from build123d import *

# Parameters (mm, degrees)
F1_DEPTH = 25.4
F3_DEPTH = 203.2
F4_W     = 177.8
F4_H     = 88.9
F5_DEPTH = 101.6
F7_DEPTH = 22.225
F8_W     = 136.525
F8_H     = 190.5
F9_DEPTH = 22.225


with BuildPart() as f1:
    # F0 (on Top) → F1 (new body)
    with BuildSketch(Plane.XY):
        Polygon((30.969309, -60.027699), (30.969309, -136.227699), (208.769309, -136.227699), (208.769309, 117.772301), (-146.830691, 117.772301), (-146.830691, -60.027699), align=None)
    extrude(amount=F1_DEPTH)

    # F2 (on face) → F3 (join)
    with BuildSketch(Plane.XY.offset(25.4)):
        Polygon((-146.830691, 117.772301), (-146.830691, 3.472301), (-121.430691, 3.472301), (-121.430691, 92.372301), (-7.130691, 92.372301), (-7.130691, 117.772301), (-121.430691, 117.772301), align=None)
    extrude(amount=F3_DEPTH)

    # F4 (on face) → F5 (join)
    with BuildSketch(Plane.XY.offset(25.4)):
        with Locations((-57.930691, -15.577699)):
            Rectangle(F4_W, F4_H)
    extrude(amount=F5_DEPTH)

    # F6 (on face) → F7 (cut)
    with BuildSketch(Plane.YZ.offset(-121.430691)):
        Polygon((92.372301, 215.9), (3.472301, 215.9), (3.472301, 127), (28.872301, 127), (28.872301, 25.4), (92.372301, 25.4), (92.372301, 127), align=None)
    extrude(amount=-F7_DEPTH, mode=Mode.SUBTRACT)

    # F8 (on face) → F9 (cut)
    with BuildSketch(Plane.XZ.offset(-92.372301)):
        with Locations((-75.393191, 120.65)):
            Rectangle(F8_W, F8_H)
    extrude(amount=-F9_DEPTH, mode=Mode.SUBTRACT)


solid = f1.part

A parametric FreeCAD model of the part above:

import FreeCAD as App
import Part
import Sketcher

V = App.Vector
Q = App.Units.Quantity


def add_polygon(sketch, points):
    """Adds a closed chain of lines whose ends are joined by coincident constraints."""
    first, n = sketch.GeometryCount, len(points)
    for a, b in zip(points, points[1:] + points[:1]):
        sketch.addGeometry(Part.LineSegment(App.Vector(*a, 0), App.Vector(*b, 0)), False)
    for i in range(n):
        sketch.addConstraint(Sketcher.Constraint("Coincident", first + i, 2, first + (i + 1) % n, 1))

doc = App.newDocument("Part")
body = doc.addObject("PartDesign::Body", "Body")

# Sketch on XY plane
sketch1 = doc.addObject("Sketcher::SketchObject", "Sketch")
body.addObject(sketch1)
sketch1.AttachmentSupport = (doc.XY_Plane, [""])
sketch1.MapMode = "FlatFace"
add_polygon(sketch1, [(31, -60), (31, -136), (209, -136), (209, 118), (-147, 118), (-147, -60)])  # lines 0-5
sketch1.addConstraint([
    Sketcher.Constraint("Vertical", 0),
    Sketcher.Constraint("Horizontal", 1),
    Sketcher.Constraint("Vertical", 2),
    Sketcher.Constraint("Horizontal", 3),
    Sketcher.Constraint("Vertical", 4),
    Sketcher.Constraint("Horizontal", 5),
    Sketcher.Constraint("Equal", 1, 5),
    Sketcher.Constraint("Equal", 5, 4),
    Sketcher.Constraint("DistanceX", 1, 1, 1, 2, Q("7 in")),
    Sketcher.Constraint("DistanceY", 0, 2, 0, 1, Q("3 in")),
    Sketcher.Constraint("DistanceY", 0, 2, -1, 1, 136.227699),
    Sketcher.Constraint("DistanceX", -1, 1, 0, 2, 30.969309),
])
pad1 = doc.addObject("PartDesign::Pad", "Pad")
body.addObject(pad1)
pad1.Profile = sketch1
pad1.Length = Q("1 in")

# Sketch on XY plane
sketch2 = doc.addObject("Sketcher::SketchObject", "Sketch001")
body.addObject(sketch2)
sketch2.AttachmentSupport = (doc.XY_Plane, [""])
sketch2.MapMode = "FlatFace"
sketch2.AttachmentOffset = App.Placement(V(0, 0, 1 * 25.4), App.Rotation())
add_polygon(sketch2, [(-147, 118), (-147, 3), (-121, 3), (-121, 92), (-7, 92), (-7, 118)])  # lines 0-5
sketch2.addConstraint([
    Sketcher.Constraint("Vertical", 0),
    Sketcher.Constraint("Horizontal", 1),
    Sketcher.Constraint("Vertical", 2),
    Sketcher.Constraint("Horizontal", 3),
    Sketcher.Constraint("Vertical", 4),
    Sketcher.Constraint("Horizontal", 5),
    Sketcher.Constraint("Equal", 3, 0),
    Sketcher.Constraint("Equal", 1, 4),
    Sketcher.Constraint("DistanceX", 1, 1, 1, 2, Q("1 in")),
    Sketcher.Constraint("DistanceX", 3, 1, 3, 2, Q("4.5 in")),
    Sketcher.Constraint("DistanceY", -1, 1, 0, 2, 3.472301),
    Sketcher.Constraint("DistanceX", 0, 2, -1, 1, 146.830691),
])
pad2 = doc.addObject("PartDesign::Pad", "Pad001")
body.addObject(pad2)
pad2.Profile = sketch2
pad2.Length = Q("8 in")

# Sketch on XY plane
sketch3 = doc.addObject("Sketcher::SketchObject", "Sketch002")
body.addObject(sketch3)
sketch3.AttachmentSupport = (doc.XY_Plane, [""])
sketch3.MapMode = "FlatFace"
sketch3.AttachmentOffset = App.Placement(V(0, 0, 1 * 25.4), App.Rotation())
add_polygon(sketch3, [(-147, 29), (-147, -60), (31, -60), (31, 29)])  # lines 0-3
sketch3.addConstraint([
    Sketcher.Constraint("Vertical", 0),
    Sketcher.Constraint("Horizontal", 1),
    Sketcher.Constraint("Vertical", 2),
    Sketcher.Constraint("Horizontal", 3),
    Sketcher.Constraint("DistanceX", 1, 1, 1, 2, Q("7 in")),
    Sketcher.Constraint("DistanceY", 0, 2, 0, 1, Q("3.5 in")),
    Sketcher.Constraint("DistanceY", 0, 2, -1, 1, 60.027699),
    Sketcher.Constraint("DistanceX", 0, 2, -1, 1, 146.830691),
])
pad3 = doc.addObject("PartDesign::Pad", "Pad002")
body.addObject(pad3)
pad3.Profile = sketch3
pad3.Length = Q("4 in")

# Sketch on YZ plane
sketch4 = doc.addObject("Sketcher::SketchObject", "Sketch003")
body.addObject(sketch4)
sketch4.AttachmentSupport = (doc.YZ_Plane, [""])
sketch4.MapMode = "FlatFace"
sketch4.AttachmentOffset = App.Placement(V(0, 0, -121.430691), App.Rotation())
add_polygon(sketch4, [(92, 216), (3, 216), (3, 127), (29, 127), (29, 25), (92, 25)])  # lines 0-5
sketch4.addConstraint([
    Sketcher.Constraint("Horizontal", 0),
    Sketcher.Constraint("Vertical", 1),
    Sketcher.Constraint("Horizontal", 2),
    Sketcher.Constraint("Vertical", 3),
    Sketcher.Constraint("Horizontal", 4),
    Sketcher.Constraint("Vertical", 5),
    Sketcher.Constraint("Equal", 0, 1),
    Sketcher.Constraint("DistanceX", 2, 1, 2, 2, Q("1 in")),
    Sketcher.Constraint("DistanceY", 3, 2, 3, 1, Q("4 in")),
    Sketcher.Constraint("DistanceX", 0, 2, 0, 1, Q("3.5 in")),
    Sketcher.Constraint("DistanceY", -1, 1, 1, 2, Q("5 in")),
    Sketcher.Constraint("DistanceX", -1, 1, 0, 2, 3.472301),
])
pocket1 = doc.addObject("PartDesign::Pocket", "Pocket")
body.addObject(pocket1)
pocket1.Profile = sketch4
pocket1.Length = Q("0.875 in")

# Sketch on XZ plane
sketch5 = doc.addObject("Sketcher::SketchObject", "Sketch004")
body.addObject(sketch5)
sketch5.AttachmentSupport = (doc.XZ_Plane, [""])
sketch5.MapMode = "FlatFace"
sketch5.AttachmentOffset = App.Placement(V(0, 0, -92.372301), App.Rotation())
add_polygon(sketch5, [(-144, 216), (-144, 25), (-7, 25), (-7, 216)])  # lines 0-3
sketch5.addConstraint([
    Sketcher.Constraint("Vertical", 0),
    Sketcher.Constraint("Horizontal", 1),
    Sketcher.Constraint("Vertical", 2),
    Sketcher.Constraint("Horizontal", 3),
    Sketcher.Constraint("DistanceY", 0, 2, 0, 1, Q("7.5 in")),
    Sketcher.Constraint("DistanceY", -1, 1, 0, 2, Q("1 in")),
    Sketcher.Constraint("DistanceX", 1, 1, 1, 2, Q("5.375 in")),
    Sketcher.Constraint("DistanceX", 0, 2, -1, 1, 143.655691),
])
pocket2 = doc.addObject("PartDesign::Pocket", "Pocket001")
body.addObject(pocket2)
pocket2.Profile = sketch5
pocket2.Length = Q("0.875 in")

doc.recompute()
